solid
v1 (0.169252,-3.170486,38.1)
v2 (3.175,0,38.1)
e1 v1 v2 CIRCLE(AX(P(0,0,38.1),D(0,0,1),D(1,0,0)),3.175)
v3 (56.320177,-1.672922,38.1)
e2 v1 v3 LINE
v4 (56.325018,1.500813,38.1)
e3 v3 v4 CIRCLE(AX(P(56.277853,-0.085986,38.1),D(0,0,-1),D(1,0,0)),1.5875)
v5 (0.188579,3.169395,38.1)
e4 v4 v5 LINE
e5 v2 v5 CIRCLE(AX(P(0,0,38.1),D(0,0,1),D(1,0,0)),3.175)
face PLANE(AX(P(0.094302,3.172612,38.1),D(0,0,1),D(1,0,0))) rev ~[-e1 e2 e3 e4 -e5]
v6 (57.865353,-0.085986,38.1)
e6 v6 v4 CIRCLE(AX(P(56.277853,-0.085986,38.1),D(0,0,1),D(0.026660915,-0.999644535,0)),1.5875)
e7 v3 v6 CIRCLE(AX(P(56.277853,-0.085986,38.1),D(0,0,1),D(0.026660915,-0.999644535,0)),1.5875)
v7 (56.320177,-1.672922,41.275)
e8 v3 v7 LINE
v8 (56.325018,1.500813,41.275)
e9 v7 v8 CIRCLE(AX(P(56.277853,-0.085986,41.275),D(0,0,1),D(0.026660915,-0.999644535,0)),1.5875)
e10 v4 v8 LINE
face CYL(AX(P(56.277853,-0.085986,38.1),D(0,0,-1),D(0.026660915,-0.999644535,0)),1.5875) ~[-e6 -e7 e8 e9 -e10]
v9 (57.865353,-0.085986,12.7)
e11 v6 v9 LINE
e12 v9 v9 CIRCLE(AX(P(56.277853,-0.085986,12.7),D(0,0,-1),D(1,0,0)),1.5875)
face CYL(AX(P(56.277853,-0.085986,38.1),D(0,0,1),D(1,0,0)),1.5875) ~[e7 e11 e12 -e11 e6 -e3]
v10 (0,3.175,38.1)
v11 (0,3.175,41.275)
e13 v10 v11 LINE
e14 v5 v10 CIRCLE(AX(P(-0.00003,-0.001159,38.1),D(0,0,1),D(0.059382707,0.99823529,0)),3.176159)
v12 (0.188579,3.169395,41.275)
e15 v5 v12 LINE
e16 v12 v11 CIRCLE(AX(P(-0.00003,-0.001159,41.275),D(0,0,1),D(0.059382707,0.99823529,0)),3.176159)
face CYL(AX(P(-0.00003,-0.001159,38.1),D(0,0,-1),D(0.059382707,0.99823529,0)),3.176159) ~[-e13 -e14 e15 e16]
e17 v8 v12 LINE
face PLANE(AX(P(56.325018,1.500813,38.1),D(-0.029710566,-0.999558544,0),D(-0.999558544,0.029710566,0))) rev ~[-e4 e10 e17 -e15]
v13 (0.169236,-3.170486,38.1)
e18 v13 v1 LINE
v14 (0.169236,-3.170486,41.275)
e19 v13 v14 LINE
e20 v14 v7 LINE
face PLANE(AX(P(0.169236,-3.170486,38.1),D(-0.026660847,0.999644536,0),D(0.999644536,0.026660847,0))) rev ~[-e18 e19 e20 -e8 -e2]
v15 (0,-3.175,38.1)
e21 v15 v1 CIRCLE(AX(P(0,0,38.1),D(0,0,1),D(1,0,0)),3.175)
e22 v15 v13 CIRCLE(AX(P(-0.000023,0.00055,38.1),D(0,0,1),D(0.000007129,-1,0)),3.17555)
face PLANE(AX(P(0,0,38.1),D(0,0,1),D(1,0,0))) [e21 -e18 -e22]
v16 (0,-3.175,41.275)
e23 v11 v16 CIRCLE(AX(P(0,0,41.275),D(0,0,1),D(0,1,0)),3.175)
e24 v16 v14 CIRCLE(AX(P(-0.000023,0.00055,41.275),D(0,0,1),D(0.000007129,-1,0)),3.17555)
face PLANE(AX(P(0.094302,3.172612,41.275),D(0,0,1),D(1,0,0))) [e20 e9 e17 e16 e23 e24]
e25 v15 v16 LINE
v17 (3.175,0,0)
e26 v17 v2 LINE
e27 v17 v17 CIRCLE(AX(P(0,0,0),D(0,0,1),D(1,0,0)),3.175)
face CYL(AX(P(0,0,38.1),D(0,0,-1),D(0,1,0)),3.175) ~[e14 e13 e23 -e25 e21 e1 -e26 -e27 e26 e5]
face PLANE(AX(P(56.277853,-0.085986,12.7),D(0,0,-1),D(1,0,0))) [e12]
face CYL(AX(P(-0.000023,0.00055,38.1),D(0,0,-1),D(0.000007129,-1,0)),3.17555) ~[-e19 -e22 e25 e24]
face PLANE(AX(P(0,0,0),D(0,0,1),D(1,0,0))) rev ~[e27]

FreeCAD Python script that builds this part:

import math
import FreeCAD as App
import Part
import Sketcher
from FreeCAD import Vector
Q = App.Units.Quantity

doc = App.newDocument("Part")
body = doc.addObject("PartDesign::Body", "Body")

sketch1 = body.newObject("Sketcher::SketchObject", "Sketch")
sketch1.AttachmentSupport = (doc.getObject("XY_Plane"), [""])
sketch1.MapMode = "FlatFace"
sketch1.addGeometry(Part.Circle(Vector(0, 0, 0), Vector(0, 0, 1), 3.2), False)
sketch1.addConstraint(Sketcher.Constraint("Coincident", 0, 3, -1, 1))
sketch1.addConstraint(Sketcher.Constraint("Diameter", 0, Q("0.25 in")))
pad1 = body.newObject("PartDesign::Pad", "Pad")
pad1.Profile = sketch1
pad1.Length = Q("1.5 in")

sketch2 = body.newObject("Sketcher::SketchObject", "Sketch001")
sketch2.AttachmentSupport = (doc.getObject("XY_Plane"), [""])
sketch2.MapMode = "FlatFace"
sketch2.AttachmentOffset = App.Placement(Vector(0, 0, 1.5 * 25.4), App.Rotation())
sketch2.addGeometry(Part.ArcOfCircle(Part.Circle(Vector(0, 0, 0), Vector(0, 0, 1), 3.18), math.radians(86.6), math.radians(90)), False)
sketch2.addGeometry(Part.ArcOfCircle(Part.Circle(Vector(0, 0, 0), Vector(0, 0, 1), 3.17), math.radians(90), math.radians(270)), False)
sketch2.addGeometry(Part.ArcOfCircle(Part.Circle(Vector(0, 0, 0), Vector(0, 0, 1), 3.18), math.radians(-90), math.radians(-86.94)), False)
sketch2.addGeometry(Part.LineSegment(Vector(0.17, -3.17, 0), Vector(56.32, -1.67, 0)), False)
sketch2.addGeometry(Part.ArcOfCircle(Part.Circle(Vector(56.28, -0.09, 0), Vector(0, 0, 1), 1.59), math.radians(-88), math.radians(88)), False)
sketch2.addGeometry(Part.LineSegment(Vector(56.33, 1.5, 0), Vector(0.19, 3.17, 0)), False)
sketch2.addConstraint(Sketcher.Constraint("Coincident", 0, 2, 1, 1))
sketch2.addConstraint(Sketcher.Constraint("Coincident", 1, 2, 2, 1))
sketch2.addConstraint(Sketcher.Constraint("Coincident", 2, 2, 3, 1))
sketch2.addConstraint(Sketcher.Constraint("Tangent", 3, 2, 4, 1))
sketch2.addConstraint(Sketcher.Constraint("Tangent", 4, 2, 5, 1))
sketch2.addConstraint(Sketcher.Constraint("Coincident", 5, 2, 0, 1))
sketch2.addConstraint(Sketcher.Constraint("Coincident", 1, 3, -1, 1))
sketch2.addConstraint(Sketcher.Constraint("PointOnObject", 0, 2, -2))
sketch2.addConstraint(Sketcher.Constraint("PointOnObject", 1, 2, -2))
sketch2.addConstraint(Sketcher.Constraint("Radius", 1, Q("0.125 in")))
sketch2.addConstraint(Sketcher.Constraint("Radius", 4, Q("0.0625 in")))
sketch2.addConstraint(Sketcher.Constraint("Radius", 0, 3.176159))
sketch2.addConstraint(Sketcher.Constraint("Radius", 2, 3.17555))
sketch2.addConstraint(Sketcher.Constraint("DistanceX", 2, 3, 5, 2, 0.188602))
sketch2.addConstraint(Sketcher.Constraint("Distance", 5, 56.161232))
sketch2.addConstraint(Sketcher.Constraint("DistanceX", -1, 1, 4, 2, 56.325018))
sketch2.addConstraint(Sketcher.Constraint("DistanceX", -1, 1, 5, 2, 0.188579))
sketch2.addConstraint(Sketcher.Constraint("DistanceX", 2, 3, 2, 2, 0.169259))
sketch2.addConstraint(Sketcher.Constraint("DistanceX", 0, 3, 5, 2, 0.188609))
pad2 = body.newObject("PartDesign::Pad", "Pad001")
pad2.Profile = sketch2
pad2.Length = Q("0.125 in")

sketch3 = body.newObject("Sketcher::SketchObject", "Sketch002")
sketch3.AttachmentSupport = (doc.getObject("XY_Plane"), [""])
sketch3.MapMode = "FlatFace"
sketch3.AttachmentOffset = App.Placement(Vector(0, 0, 1.5 * 25.4), App.Rotation())
sketch3.addGeometry(Part.Circle(Vector(56.3, -0.1, 0), Vector(0, 0, 1), 1.6), False)
sketch3.addConstraint(Sketcher.Constraint("Diameter", 0, Q("0.125 in")))
sketch3.addConstraint(Sketcher.Constraint("DistanceX", -1, 1, 0, 3, 56.277853))
sketch3.addConstraint(Sketcher.Constraint("DistanceY", 0, 3, -1, 1, 0.085986))
pad3 = body.newObject("PartDesign::Pad", "Pad002")
pad3.Profile = sketch3
pad3.Length = Q("1 in")
pad3.Reversed = True

doc.recompute()
